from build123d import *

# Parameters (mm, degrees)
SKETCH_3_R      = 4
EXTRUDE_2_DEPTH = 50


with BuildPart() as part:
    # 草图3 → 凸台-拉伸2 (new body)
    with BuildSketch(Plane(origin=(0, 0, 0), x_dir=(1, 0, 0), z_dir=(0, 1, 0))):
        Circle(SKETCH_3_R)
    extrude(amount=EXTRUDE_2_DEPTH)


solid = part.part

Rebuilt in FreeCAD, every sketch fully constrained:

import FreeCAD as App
import Part
import Sketcher
from FreeCAD import Vector
Q = App.Units.Quantity

doc = App.newDocument("Part")
body = doc.addObject("PartDesign::Body", "Body")

# Sketch on XZ plane
sketch1 = body.newObject("Sketcher::SketchObject", "Sketch")
sketch1.AttachmentSupport = (doc.getObject("XZ_Plane"), [""])
sketch1.MapMode = "FlatFace"
sketch1.addGeometry(Part.Circle(Vector(0, 0, 0), Vector(0, 0, 1), 4), False)
sketch1.addConstraint([
    Sketcher.Constraint("Coincident", 0, 3, -1, 1),
    Sketcher.Constraint("Diameter", 0, Q("8 mm")),
])
pad1 = body.newObject("PartDesign::Pad", "Pad")
pad1.Profile = sketch1
pad1.Length = 50
pad1.Reversed = True

doc.recompute()
